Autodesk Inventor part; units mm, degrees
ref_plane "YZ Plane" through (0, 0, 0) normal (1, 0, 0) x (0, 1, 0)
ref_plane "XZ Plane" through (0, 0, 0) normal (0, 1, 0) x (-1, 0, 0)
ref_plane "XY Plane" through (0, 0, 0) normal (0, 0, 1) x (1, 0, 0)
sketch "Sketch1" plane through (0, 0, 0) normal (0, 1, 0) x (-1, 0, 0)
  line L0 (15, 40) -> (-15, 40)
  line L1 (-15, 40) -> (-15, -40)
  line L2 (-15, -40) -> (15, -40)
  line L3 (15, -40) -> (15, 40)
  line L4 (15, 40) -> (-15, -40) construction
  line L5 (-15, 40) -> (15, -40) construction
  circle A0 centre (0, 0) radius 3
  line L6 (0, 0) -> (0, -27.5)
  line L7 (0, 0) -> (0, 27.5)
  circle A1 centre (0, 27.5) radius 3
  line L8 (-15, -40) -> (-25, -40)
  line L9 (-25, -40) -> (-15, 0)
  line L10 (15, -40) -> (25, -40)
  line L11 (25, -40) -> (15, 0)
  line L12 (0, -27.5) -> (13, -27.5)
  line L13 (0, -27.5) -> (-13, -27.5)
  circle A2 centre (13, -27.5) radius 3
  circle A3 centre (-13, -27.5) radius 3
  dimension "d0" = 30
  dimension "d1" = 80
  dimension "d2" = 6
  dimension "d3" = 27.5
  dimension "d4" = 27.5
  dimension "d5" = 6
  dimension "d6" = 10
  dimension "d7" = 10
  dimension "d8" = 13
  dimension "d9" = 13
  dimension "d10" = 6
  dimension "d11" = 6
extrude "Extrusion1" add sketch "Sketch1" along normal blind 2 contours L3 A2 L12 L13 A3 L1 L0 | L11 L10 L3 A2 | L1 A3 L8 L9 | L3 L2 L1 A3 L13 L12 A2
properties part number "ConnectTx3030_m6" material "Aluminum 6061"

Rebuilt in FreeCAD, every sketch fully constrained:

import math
import FreeCAD as App
import Part
import Sketcher

V = App.Vector
Q = App.Units.Quantity


def add_polygon(sketch, points):
    """Adds a closed chain of lines whose ends are joined by coincident constraints."""
    first, n = sketch.GeometryCount, len(points)
    for a, b in zip(points, points[1:] + points[:1]):
        sketch.addGeometry(Part.LineSegment(App.Vector(*a, 0), App.Vector(*b, 0)), False)
    for i in range(n):
        sketch.addConstraint(Sketcher.Constraint("Coincident", first + i, 2, first + (i + 1) % n, 1))

doc = App.newDocument("Part")
body = doc.addObject("PartDesign::Body", "Body")

sketch1 = doc.addObject("Sketcher::SketchObject", "Sketch")
body.addObject(sketch1)
sketch1.AttachmentSupport = (doc.XZ_Plane, [""])
sketch1.MapMode = "FlatFace"
add_polygon(sketch1, [(-15, 0), (-15, 40), (15, 40), (15, 0), (25, -40), (-25, -40)])
sketch1.addGeometry(Part.Circle(V(-13, -27.5, 0), V(0, 0, 1), 3), False)
sketch1.addGeometry(Part.Circle(V(13, -27.5, 0), V(0, 0, 1), 3), False)
sketch1.addGeometry(Part.ArcOfCircle(Part.Circle(V(0, 0, 0), V(0, 0, 1), 3), math.radians(-90), math.radians(90)), False)
sketch1.addGeometry(Part.ArcOfCircle(Part.Circle(V(0, 0, 0), V(0, 0, 1), 3), math.radians(90), math.radians(270)), False)
sketch1.addGeometry(Part.Circle(V(0, 27.5, 0), V(0, 0, 1), 3), False)
sketch1.addConstraint([
    Sketcher.Constraint("Tangent", 8, 1, 9, 2),
    Sketcher.Constraint("Coincident", 9, 1, 8, 2),
    Sketcher.Constraint("Vertical", 0),
    Sketcher.Constraint("Horizontal", 1),
    Sketcher.Constraint("Vertical", 2),
    Sketcher.Constraint("Horizontal", 4),
    Sketcher.Constraint("Coincident", 8, 3, -1, 1),
    Sketcher.Constraint("Equal", 6, 7),
    Sketcher.Constraint("Equal", 7, 8),
    Sketcher.Constraint("Equal", 9, 10),
    Sketcher.Constraint("Symmetric", 2, 2, 5, 2, -1, 1),
    Sketcher.Constraint("Symmetric", 6, 3, 7, 3, -2),
    Sketcher.Constraint("PointOnObject", 10, 3, -2),
    Sketcher.Constraint("PointOnObject", 2, 2, -1),
    Sketcher.Constraint("PointOnObject", 8, 1, -2),
    Sketcher.Constraint("PointOnObject", 9, 1, -2),
    Sketcher.Constraint("Equal", 3, 5),
    Sketcher.Constraint("Diameter", 6, Q("6 mm")),
    Sketcher.Constraint("DistanceX", 1, 1, 1, 2, Q("30 mm")),
    Sketcher.Constraint("DistanceX", 6, 3, -1, 1, Q("13 mm")),
    Sketcher.Constraint("DistanceX", 2, 2, 3, 2, Q("10 mm")),
    Sketcher.Constraint("DistanceY", 6, 3, -1, 1, Q("27.5 mm")),
    Sketcher.Constraint("DistanceY", -1, 1, 10, 3, Q("27.5 mm")),
    Sketcher.Constraint("DistanceY", 0, 1, 0, 2, Q("40 mm")),
    Sketcher.Constraint("DistanceY", 3, 2, -1, 1, Q("40 mm")),
])
pad1 = doc.addObject("PartDesign::Pad", "Pad")
body.addObject(pad1)
pad1.Profile = sketch1
pad1.Length = 2
pad1.Reversed = True

doc.recompute()
